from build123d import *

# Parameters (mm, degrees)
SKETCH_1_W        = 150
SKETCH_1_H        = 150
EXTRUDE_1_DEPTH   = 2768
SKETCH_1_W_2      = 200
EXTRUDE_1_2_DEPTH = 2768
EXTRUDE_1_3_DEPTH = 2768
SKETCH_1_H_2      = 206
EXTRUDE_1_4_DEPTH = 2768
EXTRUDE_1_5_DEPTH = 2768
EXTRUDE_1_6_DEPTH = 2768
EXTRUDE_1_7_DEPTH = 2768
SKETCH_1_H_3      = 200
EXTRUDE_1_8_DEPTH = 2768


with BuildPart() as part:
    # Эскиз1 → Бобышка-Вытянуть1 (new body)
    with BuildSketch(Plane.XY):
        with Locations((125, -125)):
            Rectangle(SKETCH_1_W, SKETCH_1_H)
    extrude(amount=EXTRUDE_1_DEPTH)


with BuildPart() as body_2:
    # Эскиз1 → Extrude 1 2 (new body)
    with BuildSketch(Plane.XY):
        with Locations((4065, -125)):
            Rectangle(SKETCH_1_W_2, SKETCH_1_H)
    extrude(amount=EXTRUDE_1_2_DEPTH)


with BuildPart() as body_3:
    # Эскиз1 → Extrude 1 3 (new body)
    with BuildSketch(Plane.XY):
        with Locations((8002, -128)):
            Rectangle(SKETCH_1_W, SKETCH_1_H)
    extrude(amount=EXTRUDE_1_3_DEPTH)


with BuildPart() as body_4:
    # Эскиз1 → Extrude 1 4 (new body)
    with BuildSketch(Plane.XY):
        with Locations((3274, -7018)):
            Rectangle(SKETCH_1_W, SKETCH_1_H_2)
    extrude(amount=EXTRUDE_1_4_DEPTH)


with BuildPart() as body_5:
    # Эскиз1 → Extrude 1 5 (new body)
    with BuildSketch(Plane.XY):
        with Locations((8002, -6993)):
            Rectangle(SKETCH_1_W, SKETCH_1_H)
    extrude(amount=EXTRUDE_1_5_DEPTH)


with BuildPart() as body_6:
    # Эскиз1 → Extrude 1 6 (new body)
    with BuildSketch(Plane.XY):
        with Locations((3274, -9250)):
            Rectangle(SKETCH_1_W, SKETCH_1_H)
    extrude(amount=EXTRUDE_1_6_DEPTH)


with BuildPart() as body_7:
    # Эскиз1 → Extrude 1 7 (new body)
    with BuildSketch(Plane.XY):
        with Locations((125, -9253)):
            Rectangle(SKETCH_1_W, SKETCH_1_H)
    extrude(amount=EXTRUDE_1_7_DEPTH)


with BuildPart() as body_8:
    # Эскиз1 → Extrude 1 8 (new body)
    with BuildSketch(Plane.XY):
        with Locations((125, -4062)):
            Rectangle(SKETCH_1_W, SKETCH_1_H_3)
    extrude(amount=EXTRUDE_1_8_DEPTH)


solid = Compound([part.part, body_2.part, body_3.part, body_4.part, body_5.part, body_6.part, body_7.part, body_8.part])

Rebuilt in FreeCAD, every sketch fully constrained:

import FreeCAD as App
import Part
import Sketcher

V = App.Vector
Q = App.Units.Quantity

doc = App.newDocument("Part")
body = doc.addObject("PartDesign::Body", "Body")

# Sketch on XY plane
sketch1 = body.newObject("Sketcher::SketchObject", "Sketch")
sketch1.AttachmentSupport = (doc.getObject("XY_Plane"), [""])
sketch1.MapMode = "FlatFace"
sketch1.addGeometry(Part.LineSegment(V(50, -50, 0), V(50, -200, 0)), False)
sketch1.addGeometry(Part.LineSegment(V(50, -200, 0), V(200, -200, 0)), False)
sketch1.addGeometry(Part.LineSegment(V(200, -200, 0), V(200, -50, 0)), False)
sketch1.addGeometry(Part.LineSegment(V(200, -50, 0), V(50, -50, 0)), False)
sketch1.addConstraint(Sketcher.Constraint("Coincident", 0, 2, 1, 1))
sketch1.addConstraint(Sketcher.Constraint("Coincident", 1, 2, 2, 1))
sketch1.addConstraint(Sketcher.Constraint("Coincident", 2, 2, 3, 1))
sketch1.addConstraint(Sketcher.Constraint("Coincident", 3, 2, 0, 1))
sketch1.addConstraint(Sketcher.Constraint("Vertical", 0))
sketch1.addConstraint(Sketcher.Constraint("Horizontal", 1))
sketch1.addConstraint(Sketcher.Constraint("Vertical", 2))
sketch1.addConstraint(Sketcher.Constraint("Horizontal", 3))
sketch1.addConstraint(Sketcher.Constraint("Equal", 3, 0))
sketch1.addConstraint(Sketcher.Constraint("DistanceX", 1, 1, 1, 2, Q("150 mm")))
sketch1.addConstraint(Sketcher.Constraint("DistanceX", -1, 1, 0, 2, Q("50 mm")))
sketch1.addConstraint(Sketcher.Constraint("DistanceY", 0, 2, -1, 1, Q("200 mm")))
pad1 = body.newObject("PartDesign::Pad", "Pad")
pad1.Profile = sketch1
pad1.Length = 2768
body2 = doc.addObject("PartDesign::Body", "Body001")

# Sketch on XY plane
sketch2 = body2.newObject("Sketcher::SketchObject", "Sketch001")
sketch2.AttachmentSupport = (doc.getObject("XY_Plane001"), [""])
sketch2.MapMode = "FlatFace"
sketch2.addGeometry(Part.LineSegment(V(3965, -50, 0), V(3965, -200, 0)), False)
sketch2.addGeometry(Part.LineSegment(V(3965, -200, 0), V(4165, -200, 0)), False)
sketch2.addGeometry(Part.LineSegment(V(4165, -200, 0), V(4165, -50, 0)), False)
sketch2.addGeometry(Part.LineSegment(V(4165, -50, 0), V(3965, -50, 0)), False)
sketch2.addConstraint(Sketcher.Constraint("Coincident", 0, 2, 1, 1))
sketch2.addConstraint(Sketcher.Constraint("Coincident", 1, 2, 2, 1))
sketch2.addConstraint(Sketcher.Constraint("Coincident", 2, 2, 3, 1))
sketch2.addConstraint(Sketcher.Constraint("Coincident", 3, 2, 0, 1))
sketch2.addConstraint(Sketcher.Constraint("Vertical", 0))
sketch2.addConstraint(Sketcher.Constraint("Horizontal", 1))
sketch2.addConstraint(Sketcher.Constraint("Vertical", 2))
sketch2.addConstraint(Sketcher.Constraint("Horizontal", 3))
sketch2.addConstraint(Sketcher.Constraint("DistanceX", 1, 1, 1, 2, Q("200 mm")))
sketch2.addConstraint(Sketcher.Constraint("DistanceY", 0, 2, 0, 1, Q("150 mm")))
sketch2.addConstraint(Sketcher.Constraint("DistanceX", -1, 1, 0, 2, Q("3965 mm")))
sketch2.addConstraint(Sketcher.Constraint("DistanceY", 0, 2, -1, 1, Q("200 mm")))
pad2 = body2.newObject("PartDesign::Pad", "Pad001")
pad2.Profile = sketch2
pad2.Length = 2768
body3 = doc.addObject("PartDesign::Body", "Body002")

# Sketch on XY plane
sketch3 = body3.newObject("Sketcher::SketchObject", "Sketch002")
sketch3.AttachmentSupport = (doc.getObject("XY_Plane002"), [""])
sketch3.MapMode = "FlatFace"
sketch3.addGeometry(Part.LineSegment(V(7927, -53, 0), V(7927, -203, 0)), False)
sketch3.addGeometry(Part.LineSegment(V(7927, -203, 0), V(8077, -203, 0)), False)
sketch3.addGeometry(Part.LineSegment(V(8077, -203, 0), V(8077, -53, 0)), False)
sketch3.addGeometry(Part.LineSegment(V(8077, -53, 0), V(7927, -53, 0)), False)
sketch3.addConstraint(Sketcher.Constraint("Coincident", 0, 2, 1, 1))
sketch3.addConstraint(Sketcher.Constraint("Coincident", 1, 2, 2, 1))
sketch3.addConstraint(Sketcher.Constraint("Coincident", 2, 2, 3, 1))
sketch3.addConstraint(Sketcher.Constraint("Coincident", 3, 2, 0, 1))
sketch3.addConstraint(Sketcher.Constraint("Vertical", 0))
sketch3.addConstraint(Sketcher.Constraint("Horizontal", 1))
sketch3.addConstraint(Sketcher.Constraint("Vertical", 2))
sketch3.addConstraint(Sketcher.Constraint("Horizontal", 3))
sketch3.addConstraint(Sketcher.Constraint("Equal", 3, 0))
sketch3.addConstraint(Sketcher.Constraint("DistanceX", 1, 1, 1, 2, Q("150 mm")))
sketch3.addConstraint(Sketcher.Constraint("DistanceX", -1, 1, 0, 2, Q("7927 mm")))
sketch3.addConstraint(Sketcher.Constraint("DistanceY", 0, 2, -1, 1, Q("203 mm")))
pad3 = body3.newObject("PartDesign::Pad", "Pad002")
pad3.Profile = sketch3
pad3.Length = 2768
body4 = doc.addObject("PartDesign::Body", "Body003")

# Sketch on XY plane
sketch4 = body4.newObject("Sketcher::SketchObject", "Sketch003")
sketch4.AttachmentSupport = (doc.getObject("XY_Plane003"), [""])
sketch4.MapMode = "FlatFace"
sketch4.addGeometry(Part.LineSegment(V(3199, -6915, 0), V(3199, -7121, 0)), False)
sketch4.addGeometry(Part.LineSegment(V(3199, -7121, 0), V(3349, -7121, 0)), False)
sketch4.addGeometry(Part.LineSegment(V(3349, -7121, 0), V(3349, -6915, 0)), False)
sketch4.addGeometry(Part.LineSegment(V(3349, -6915, 0), V(3199, -6915, 0)), False)
sketch4.addConstraint(Sketcher.Constraint("Coincident", 0, 2, 1, 1))
sketch4.addConstraint(Sketcher.Constraint("Coincident", 1, 2, 2, 1))
sketch4.addConstraint(Sketcher.Constraint("Coincident", 2, 2, 3, 1))
sketch4.addConstraint(Sketcher.Constraint("Coincident", 3, 2, 0, 1))
sketch4.addConstraint(Sketcher.Constraint("Vertical", 0))
sketch4.addConstraint(Sketcher.Constraint("Horizontal", 1))
sketch4.addConstraint(Sketcher.Constraint("Vertical", 2))
sketch4.addConstraint(Sketcher.Constraint("Horizontal", 3))
sketch4.addConstraint(Sketcher.Constraint("DistanceX", 1, 1, 1, 2, Q("150 mm")))
sketch4.addConstraint(Sketcher.Constraint("DistanceY", 0, 2, 0, 1, Q("206 mm")))
sketch4.addConstraint(Sketcher.Constraint("DistanceX", -1, 1, 0, 2, Q("3199 mm")))
sketch4.addConstraint(Sketcher.Constraint("DistanceY", 0, 2, -1, 1, Q("7121 mm")))
pad4 = body4.newObject("PartDesign::Pad", "Pad003")
pad4.Profile = sketch4
pad4.Length = 2768
body5 = doc.addObject("PartDesign::Body", "Body004")

# Sketch on XY plane
sketch5 = body5.newObject("Sketcher::SketchObject", "Sketch004")
sketch5.AttachmentSupport = (doc.getObject("XY_Plane004"), [""])
sketch5.MapMode = "FlatFace"
sketch5.addGeometry(Part.LineSegment(V(7927, -6918, 0), V(7927, -7068, 0)), False)
sketch5.addGeometry(Part.LineSegment(V(7927, -7068, 0), V(8077, -7068, 0)), False)
sketch5.addGeometry(Part.LineSegment(V(8077, -7068, 0), V(8077, -6918, 0)), False)
sketch5.addGeometry(Part.LineSegment(V(8077, -6918, 0), V(7927, -6918, 0)), False)
sketch5.addConstraint(Sketcher.Constraint("Coincident", 0, 2, 1, 1))
sketch5.addConstraint(Sketcher.Constraint("Coincident", 1, 2, 2, 1))
sketch5.addConstraint(Sketcher.Constraint("Coincident", 2, 2, 3, 1))
sketch5.addConstraint(Sketcher.Constraint("Coincident", 3, 2, 0, 1))
sketch5.addConstraint(Sketcher.Constraint("Vertical", 0))
sketch5.addConstraint(Sketcher.Constraint("Horizontal", 1))
sketch5.addConstraint(Sketcher.Constraint("Vertical", 2))
sketch5.addConstraint(Sketcher.Constraint("Horizontal", 3))
sketch5.addConstraint(Sketcher.Constraint("Equal", 3, 0))
sketch5.addConstraint(Sketcher.Constraint("DistanceX", 1, 1, 1, 2, Q("150 mm")))
sketch5.addConstraint(Sketcher.Constraint("DistanceX", -1, 1, 0, 2, Q("7927 mm")))
sketch5.addConstraint(Sketcher.Constraint("DistanceY", 0, 2, -1, 1, Q("7068 mm")))
pad5 = body5.newObject("PartDesign::Pad", "Pad004")
pad5.Profile = sketch5
pad5.Length = 2768
body6 = doc.addObject("PartDesign::Body", "Body005")

# Sketch on XY plane
sketch6 = body6.newObject("Sketcher::SketchObject", "Sketch005")
sketch6.AttachmentSupport = (doc.getObject("XY_Plane005"), [""])
sketch6.MapMode = "FlatFace"
sketch6.addGeometry(Part.LineSegment(V(3199, -9175, 0), V(3199, -9325, 0)), False)
sketch6.addGeometry(Part.LineSegment(V(3199, -9325, 0), V(3349, -9325, 0)), False)
sketch6.addGeometry(Part.LineSegment(V(3349, -9325, 0), V(3349, -9175, 0)), False)
sketch6.addGeometry(Part.LineSegment(V(3349, -9175, 0), V(3199, -9175, 0)), False)
sketch6.addConstraint(Sketcher.Constraint("Coincident", 0, 2, 1, 1))
sketch6.addConstraint(Sketcher.Constraint("Coincident", 1, 2, 2, 1))
sketch6.addConstraint(Sketcher.Constraint("Coincident", 2, 2, 3, 1))
sketch6.addConstraint(Sketcher.Constraint("Coincident", 3, 2, 0, 1))
sketch6.addConstraint(Sketcher.Constraint("Vertical", 0))
sketch6.addConstraint(Sketcher.Constraint("Horizontal", 1))
sketch6.addConstraint(Sketcher.Constraint("Vertical", 2))
sketch6.addConstraint(Sketcher.Constraint("Horizontal", 3))
sketch6.addConstraint(Sketcher.Constraint("Equal", 3, 0))
sketch6.addConstraint(Sketcher.Constraint("DistanceX", 1, 1, 1, 2, Q("150 mm")))
sketch6.addConstraint(Sketcher.Constraint("DistanceX", -1, 1, 0, 2, Q("3199 mm")))
sketch6.addConstraint(Sketcher.Constraint("DistanceY", 0, 2, -1, 1, Q("9325 mm")))
pad6 = body6.newObject("PartDesign::Pad", "Pad005")
pad6.Profile = sketch6
pad6.Length = 2768
body7 = doc.addObject("PartDesign::Body", "Body006")

# Sketch on XY plane
sketch7 = body7.newObject("Sketcher::SketchObject", "Sketch006")
sketch7.AttachmentSupport = (doc.getObject("XY_Plane006"), [""])
sketch7.MapMode = "FlatFace"
sketch7.addGeometry(Part.LineSegment(V(50, -9178, 0), V(50, -9328, 0)), False)
sketch7.addGeometry(Part.LineSegment(V(50, -9328, 0), V(200, -9328, 0)), False)
sketch7.addGeometry(Part.LineSegment(V(200, -9328, 0), V(200, -9178, 0)), False)
sketch7.addGeometry(Part.LineSegment(V(200, -9178, 0), V(50, -9178, 0)), False)
sketch7.addConstraint(Sketcher.Constraint("Coincident", 0, 2, 1, 1))
sketch7.addConstraint(Sketcher.Constraint("Coincident", 1, 2, 2, 1))
sketch7.addConstraint(Sketcher.Constraint("Coincident", 2, 2, 3, 1))
sketch7.addConstraint(Sketcher.Constraint("Coincident", 3, 2, 0, 1))
sketch7.addConstraint(Sketcher.Constraint("Vertical", 0))
sketch7.addConstraint(Sketcher.Constraint("Horizontal", 1))
sketch7.addConstraint(Sketcher.Constraint("Vertical", 2))
sketch7.addConstraint(Sketcher.Constraint("Horizontal", 3))
sketch7.addConstraint(Sketcher.Constraint("Equal", 3, 0))
sketch7.addConstraint(Sketcher.Constraint("DistanceX", 1, 1, 1, 2, Q("150 mm")))
sketch7.addConstraint(Sketcher.Constraint("DistanceX", -1, 1, 0, 2, Q("50 mm")))
sketch7.addConstraint(Sketcher.Constraint("DistanceY", 0, 2, -1, 1, Q("9328 mm")))
pad7 = body7.newObject("PartDesign::Pad", "Pad006")
pad7.Profile = sketch7
pad7.Length = 2768
body8 = doc.addObject("PartDesign::Body", "Body007")

# Sketch on XY plane
sketch8 = body8.newObject("Sketcher::SketchObject", "Sketch007")
sketch8.AttachmentSupport = (doc.getObject("XY_Plane007"), [""])
sketch8.MapMode = "FlatFace"
sketch8.addGeometry(Part.LineSegment(V(50, -3962, 0), V(50, -4162, 0)), False)
sketch8.addGeometry(Part.LineSegment(V(50, -4162, 0), V(200, -4162, 0)), False)
sketch8.addGeometry(Part.LineSegment(V(200, -4162, 0), V(200, -3962, 0)), False)
sketch8.addGeometry(Part.LineSegment(V(200, -3962, 0), V(50, -3962, 0)), False)
sketch8.addConstraint(Sketcher.Constraint("Coincident", 0, 2, 1, 1))
sketch8.addConstraint(Sketcher.Constraint("Coincident", 1, 2, 2, 1))
sketch8.addConstraint(Sketcher.Constraint("Coincident", 2, 2, 3, 1))
sketch8.addConstraint(Sketcher.Constraint("Coincident", 3, 2, 0, 1))
sketch8.addConstraint(Sketcher.Constraint("Vertical", 0))
sketch8.addConstraint(Sketcher.Constraint("Horizontal", 1))
sketch8.addConstraint(Sketcher.Constraint("Vertical", 2))
sketch8.addConstraint(Sketcher.Constraint("Horizontal", 3))
sketch8.addConstraint(Sketcher.Constraint("DistanceX", 1, 1, 1, 2, Q("150 mm")))
sketch8.addConstraint(Sketcher.Constraint("DistanceY", 0, 2, 0, 1, Q("200 mm")))
sketch8.addConstraint(Sketcher.Constraint("DistanceX", -1, 1, 0, 2, Q("50 mm")))
sketch8.addConstraint(Sketcher.Constraint("DistanceY", 0, 2, -1, 1, Q("4162 mm")))
pad8 = body8.newObject("PartDesign::Pad", "Pad007")
pad8.Profile = sketch8
pad8.Length = 2768

doc.recompute()
